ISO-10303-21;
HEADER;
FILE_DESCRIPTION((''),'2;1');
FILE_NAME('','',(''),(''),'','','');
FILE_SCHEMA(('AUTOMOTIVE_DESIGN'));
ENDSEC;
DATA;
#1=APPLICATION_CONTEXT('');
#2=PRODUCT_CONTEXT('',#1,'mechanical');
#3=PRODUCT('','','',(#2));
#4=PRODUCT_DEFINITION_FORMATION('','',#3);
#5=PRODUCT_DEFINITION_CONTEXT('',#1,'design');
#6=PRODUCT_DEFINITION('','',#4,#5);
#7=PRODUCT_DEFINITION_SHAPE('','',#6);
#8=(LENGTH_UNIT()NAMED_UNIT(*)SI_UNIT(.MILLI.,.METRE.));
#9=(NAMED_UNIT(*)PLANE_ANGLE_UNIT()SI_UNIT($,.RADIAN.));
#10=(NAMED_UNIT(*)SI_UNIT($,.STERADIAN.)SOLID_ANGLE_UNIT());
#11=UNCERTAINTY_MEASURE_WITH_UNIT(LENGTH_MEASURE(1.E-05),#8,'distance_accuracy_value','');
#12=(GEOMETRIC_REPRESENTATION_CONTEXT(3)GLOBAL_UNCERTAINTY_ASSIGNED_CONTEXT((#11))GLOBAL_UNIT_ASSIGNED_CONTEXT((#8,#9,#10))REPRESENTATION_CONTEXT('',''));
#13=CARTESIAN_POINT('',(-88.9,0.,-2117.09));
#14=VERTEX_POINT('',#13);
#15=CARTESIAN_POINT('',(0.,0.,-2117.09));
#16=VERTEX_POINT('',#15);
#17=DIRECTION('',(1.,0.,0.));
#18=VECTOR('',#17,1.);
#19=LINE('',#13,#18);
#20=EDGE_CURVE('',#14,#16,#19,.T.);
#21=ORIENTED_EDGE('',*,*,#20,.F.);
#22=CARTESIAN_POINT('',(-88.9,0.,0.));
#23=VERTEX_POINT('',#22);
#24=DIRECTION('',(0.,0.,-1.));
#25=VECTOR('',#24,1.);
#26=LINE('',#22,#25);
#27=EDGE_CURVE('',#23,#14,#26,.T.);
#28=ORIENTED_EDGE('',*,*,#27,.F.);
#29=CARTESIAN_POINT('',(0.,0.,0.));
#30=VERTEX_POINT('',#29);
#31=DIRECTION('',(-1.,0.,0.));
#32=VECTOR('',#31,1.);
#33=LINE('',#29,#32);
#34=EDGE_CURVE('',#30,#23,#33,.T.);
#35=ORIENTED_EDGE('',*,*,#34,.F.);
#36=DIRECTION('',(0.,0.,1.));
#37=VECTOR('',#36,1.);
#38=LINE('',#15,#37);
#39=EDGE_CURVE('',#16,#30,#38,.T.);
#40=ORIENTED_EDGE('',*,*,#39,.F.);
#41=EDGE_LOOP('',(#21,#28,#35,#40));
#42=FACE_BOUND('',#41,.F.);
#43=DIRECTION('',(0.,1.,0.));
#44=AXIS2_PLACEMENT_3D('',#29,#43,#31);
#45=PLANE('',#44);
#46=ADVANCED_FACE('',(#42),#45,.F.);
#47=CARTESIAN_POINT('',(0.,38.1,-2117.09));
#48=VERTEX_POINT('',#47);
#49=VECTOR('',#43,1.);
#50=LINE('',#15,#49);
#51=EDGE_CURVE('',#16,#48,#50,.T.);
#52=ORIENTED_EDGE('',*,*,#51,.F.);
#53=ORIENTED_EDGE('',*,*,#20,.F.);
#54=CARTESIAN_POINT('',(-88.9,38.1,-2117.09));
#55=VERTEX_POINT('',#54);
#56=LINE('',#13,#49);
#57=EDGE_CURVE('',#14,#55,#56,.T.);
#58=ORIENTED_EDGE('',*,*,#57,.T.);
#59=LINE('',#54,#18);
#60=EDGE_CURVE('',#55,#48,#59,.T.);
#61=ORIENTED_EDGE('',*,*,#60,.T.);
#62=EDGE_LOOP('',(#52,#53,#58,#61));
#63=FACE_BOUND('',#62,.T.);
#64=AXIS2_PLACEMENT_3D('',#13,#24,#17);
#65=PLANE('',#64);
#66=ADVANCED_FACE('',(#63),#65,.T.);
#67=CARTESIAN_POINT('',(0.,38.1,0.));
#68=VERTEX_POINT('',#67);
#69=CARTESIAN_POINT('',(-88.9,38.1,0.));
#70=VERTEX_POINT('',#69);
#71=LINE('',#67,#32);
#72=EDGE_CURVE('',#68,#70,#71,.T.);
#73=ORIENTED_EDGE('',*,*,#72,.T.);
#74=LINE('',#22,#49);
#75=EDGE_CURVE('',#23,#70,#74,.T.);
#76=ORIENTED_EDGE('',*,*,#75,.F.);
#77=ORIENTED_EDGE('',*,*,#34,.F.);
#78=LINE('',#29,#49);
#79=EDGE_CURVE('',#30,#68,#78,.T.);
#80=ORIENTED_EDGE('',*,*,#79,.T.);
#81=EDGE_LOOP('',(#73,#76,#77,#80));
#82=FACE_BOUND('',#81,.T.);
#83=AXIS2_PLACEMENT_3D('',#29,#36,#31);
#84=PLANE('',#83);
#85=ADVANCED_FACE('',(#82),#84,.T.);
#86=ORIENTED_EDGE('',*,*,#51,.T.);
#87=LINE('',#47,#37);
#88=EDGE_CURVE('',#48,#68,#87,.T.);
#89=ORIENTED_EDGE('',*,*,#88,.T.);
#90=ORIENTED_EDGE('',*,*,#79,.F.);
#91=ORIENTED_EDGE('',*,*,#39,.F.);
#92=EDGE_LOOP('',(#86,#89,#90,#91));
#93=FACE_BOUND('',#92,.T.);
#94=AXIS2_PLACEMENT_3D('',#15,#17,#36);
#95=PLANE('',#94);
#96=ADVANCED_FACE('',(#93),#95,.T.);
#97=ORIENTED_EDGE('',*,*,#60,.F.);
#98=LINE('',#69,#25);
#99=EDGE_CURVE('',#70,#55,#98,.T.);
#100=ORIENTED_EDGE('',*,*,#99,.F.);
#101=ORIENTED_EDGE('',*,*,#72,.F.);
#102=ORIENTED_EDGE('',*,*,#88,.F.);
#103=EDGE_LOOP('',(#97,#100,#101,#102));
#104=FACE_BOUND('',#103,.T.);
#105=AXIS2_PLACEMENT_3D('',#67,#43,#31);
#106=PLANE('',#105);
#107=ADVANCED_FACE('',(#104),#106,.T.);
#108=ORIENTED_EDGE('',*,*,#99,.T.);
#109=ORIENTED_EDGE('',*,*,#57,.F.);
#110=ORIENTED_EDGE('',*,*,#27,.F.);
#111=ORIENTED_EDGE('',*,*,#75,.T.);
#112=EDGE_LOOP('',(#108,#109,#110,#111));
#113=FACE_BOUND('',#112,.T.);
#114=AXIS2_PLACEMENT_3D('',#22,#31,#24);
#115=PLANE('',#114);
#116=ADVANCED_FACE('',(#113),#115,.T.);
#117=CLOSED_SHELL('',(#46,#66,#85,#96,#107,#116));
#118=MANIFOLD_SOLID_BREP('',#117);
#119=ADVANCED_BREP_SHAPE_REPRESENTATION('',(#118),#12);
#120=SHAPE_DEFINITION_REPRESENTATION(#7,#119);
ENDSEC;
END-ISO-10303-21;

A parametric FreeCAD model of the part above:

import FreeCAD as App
import Part
import Sketcher
Q = App.Units.Quantity


def add_polygon(sketch, points):
    """Adds a closed chain of lines whose ends are joined by coincident constraints."""
    first, n = sketch.GeometryCount, len(points)
    for a, b in zip(points, points[1:] + points[:1]):
        sketch.addGeometry(Part.LineSegment(App.Vector(*a, 0), App.Vector(*b, 0)), False)
    for i in range(n):
        sketch.addConstraint(Sketcher.Constraint("Coincident", first + i, 2, first + (i + 1) % n, 1))

doc = App.newDocument("Part")
body = doc.addObject("PartDesign::Body", "Body")

# Sketch on XZ plane
sketch1 = body.newObject("Sketcher::SketchObject", "Sketch")
sketch1.AttachmentSupport = (doc.getObject("XZ_Plane"), [""])
sketch1.MapMode = "FlatFace"
add_polygon(sketch1, [(-89, 0), (0, 0), (0, -2117), (-89, -2117)])  # lines 0-3
sketch1.addConstraint(Sketcher.Constraint("Horizontal", 0))
sketch1.addConstraint(Sketcher.Constraint("Vertical", 1))
sketch1.addConstraint(Sketcher.Constraint("Horizontal", 2))
sketch1.addConstraint(Sketcher.Constraint("Vertical", 3))
sketch1.addConstraint(Sketcher.Constraint("Coincident", 0, 2, -1, 1))
sketch1.addConstraint(Sketcher.Constraint("DistanceX", 0, 1, 0, 2, Q("3.5 in")))
sketch1.addConstraint(Sketcher.Constraint("DistanceY", 1, 2, 1, 1, Q("83.35 in")))
pad1 = body.newObject("PartDesign::Pad", "Pad")
pad1.Profile = sketch1
pad1.Length = Q("1.5 in")
pad1.Reversed = True

doc.recompute()
